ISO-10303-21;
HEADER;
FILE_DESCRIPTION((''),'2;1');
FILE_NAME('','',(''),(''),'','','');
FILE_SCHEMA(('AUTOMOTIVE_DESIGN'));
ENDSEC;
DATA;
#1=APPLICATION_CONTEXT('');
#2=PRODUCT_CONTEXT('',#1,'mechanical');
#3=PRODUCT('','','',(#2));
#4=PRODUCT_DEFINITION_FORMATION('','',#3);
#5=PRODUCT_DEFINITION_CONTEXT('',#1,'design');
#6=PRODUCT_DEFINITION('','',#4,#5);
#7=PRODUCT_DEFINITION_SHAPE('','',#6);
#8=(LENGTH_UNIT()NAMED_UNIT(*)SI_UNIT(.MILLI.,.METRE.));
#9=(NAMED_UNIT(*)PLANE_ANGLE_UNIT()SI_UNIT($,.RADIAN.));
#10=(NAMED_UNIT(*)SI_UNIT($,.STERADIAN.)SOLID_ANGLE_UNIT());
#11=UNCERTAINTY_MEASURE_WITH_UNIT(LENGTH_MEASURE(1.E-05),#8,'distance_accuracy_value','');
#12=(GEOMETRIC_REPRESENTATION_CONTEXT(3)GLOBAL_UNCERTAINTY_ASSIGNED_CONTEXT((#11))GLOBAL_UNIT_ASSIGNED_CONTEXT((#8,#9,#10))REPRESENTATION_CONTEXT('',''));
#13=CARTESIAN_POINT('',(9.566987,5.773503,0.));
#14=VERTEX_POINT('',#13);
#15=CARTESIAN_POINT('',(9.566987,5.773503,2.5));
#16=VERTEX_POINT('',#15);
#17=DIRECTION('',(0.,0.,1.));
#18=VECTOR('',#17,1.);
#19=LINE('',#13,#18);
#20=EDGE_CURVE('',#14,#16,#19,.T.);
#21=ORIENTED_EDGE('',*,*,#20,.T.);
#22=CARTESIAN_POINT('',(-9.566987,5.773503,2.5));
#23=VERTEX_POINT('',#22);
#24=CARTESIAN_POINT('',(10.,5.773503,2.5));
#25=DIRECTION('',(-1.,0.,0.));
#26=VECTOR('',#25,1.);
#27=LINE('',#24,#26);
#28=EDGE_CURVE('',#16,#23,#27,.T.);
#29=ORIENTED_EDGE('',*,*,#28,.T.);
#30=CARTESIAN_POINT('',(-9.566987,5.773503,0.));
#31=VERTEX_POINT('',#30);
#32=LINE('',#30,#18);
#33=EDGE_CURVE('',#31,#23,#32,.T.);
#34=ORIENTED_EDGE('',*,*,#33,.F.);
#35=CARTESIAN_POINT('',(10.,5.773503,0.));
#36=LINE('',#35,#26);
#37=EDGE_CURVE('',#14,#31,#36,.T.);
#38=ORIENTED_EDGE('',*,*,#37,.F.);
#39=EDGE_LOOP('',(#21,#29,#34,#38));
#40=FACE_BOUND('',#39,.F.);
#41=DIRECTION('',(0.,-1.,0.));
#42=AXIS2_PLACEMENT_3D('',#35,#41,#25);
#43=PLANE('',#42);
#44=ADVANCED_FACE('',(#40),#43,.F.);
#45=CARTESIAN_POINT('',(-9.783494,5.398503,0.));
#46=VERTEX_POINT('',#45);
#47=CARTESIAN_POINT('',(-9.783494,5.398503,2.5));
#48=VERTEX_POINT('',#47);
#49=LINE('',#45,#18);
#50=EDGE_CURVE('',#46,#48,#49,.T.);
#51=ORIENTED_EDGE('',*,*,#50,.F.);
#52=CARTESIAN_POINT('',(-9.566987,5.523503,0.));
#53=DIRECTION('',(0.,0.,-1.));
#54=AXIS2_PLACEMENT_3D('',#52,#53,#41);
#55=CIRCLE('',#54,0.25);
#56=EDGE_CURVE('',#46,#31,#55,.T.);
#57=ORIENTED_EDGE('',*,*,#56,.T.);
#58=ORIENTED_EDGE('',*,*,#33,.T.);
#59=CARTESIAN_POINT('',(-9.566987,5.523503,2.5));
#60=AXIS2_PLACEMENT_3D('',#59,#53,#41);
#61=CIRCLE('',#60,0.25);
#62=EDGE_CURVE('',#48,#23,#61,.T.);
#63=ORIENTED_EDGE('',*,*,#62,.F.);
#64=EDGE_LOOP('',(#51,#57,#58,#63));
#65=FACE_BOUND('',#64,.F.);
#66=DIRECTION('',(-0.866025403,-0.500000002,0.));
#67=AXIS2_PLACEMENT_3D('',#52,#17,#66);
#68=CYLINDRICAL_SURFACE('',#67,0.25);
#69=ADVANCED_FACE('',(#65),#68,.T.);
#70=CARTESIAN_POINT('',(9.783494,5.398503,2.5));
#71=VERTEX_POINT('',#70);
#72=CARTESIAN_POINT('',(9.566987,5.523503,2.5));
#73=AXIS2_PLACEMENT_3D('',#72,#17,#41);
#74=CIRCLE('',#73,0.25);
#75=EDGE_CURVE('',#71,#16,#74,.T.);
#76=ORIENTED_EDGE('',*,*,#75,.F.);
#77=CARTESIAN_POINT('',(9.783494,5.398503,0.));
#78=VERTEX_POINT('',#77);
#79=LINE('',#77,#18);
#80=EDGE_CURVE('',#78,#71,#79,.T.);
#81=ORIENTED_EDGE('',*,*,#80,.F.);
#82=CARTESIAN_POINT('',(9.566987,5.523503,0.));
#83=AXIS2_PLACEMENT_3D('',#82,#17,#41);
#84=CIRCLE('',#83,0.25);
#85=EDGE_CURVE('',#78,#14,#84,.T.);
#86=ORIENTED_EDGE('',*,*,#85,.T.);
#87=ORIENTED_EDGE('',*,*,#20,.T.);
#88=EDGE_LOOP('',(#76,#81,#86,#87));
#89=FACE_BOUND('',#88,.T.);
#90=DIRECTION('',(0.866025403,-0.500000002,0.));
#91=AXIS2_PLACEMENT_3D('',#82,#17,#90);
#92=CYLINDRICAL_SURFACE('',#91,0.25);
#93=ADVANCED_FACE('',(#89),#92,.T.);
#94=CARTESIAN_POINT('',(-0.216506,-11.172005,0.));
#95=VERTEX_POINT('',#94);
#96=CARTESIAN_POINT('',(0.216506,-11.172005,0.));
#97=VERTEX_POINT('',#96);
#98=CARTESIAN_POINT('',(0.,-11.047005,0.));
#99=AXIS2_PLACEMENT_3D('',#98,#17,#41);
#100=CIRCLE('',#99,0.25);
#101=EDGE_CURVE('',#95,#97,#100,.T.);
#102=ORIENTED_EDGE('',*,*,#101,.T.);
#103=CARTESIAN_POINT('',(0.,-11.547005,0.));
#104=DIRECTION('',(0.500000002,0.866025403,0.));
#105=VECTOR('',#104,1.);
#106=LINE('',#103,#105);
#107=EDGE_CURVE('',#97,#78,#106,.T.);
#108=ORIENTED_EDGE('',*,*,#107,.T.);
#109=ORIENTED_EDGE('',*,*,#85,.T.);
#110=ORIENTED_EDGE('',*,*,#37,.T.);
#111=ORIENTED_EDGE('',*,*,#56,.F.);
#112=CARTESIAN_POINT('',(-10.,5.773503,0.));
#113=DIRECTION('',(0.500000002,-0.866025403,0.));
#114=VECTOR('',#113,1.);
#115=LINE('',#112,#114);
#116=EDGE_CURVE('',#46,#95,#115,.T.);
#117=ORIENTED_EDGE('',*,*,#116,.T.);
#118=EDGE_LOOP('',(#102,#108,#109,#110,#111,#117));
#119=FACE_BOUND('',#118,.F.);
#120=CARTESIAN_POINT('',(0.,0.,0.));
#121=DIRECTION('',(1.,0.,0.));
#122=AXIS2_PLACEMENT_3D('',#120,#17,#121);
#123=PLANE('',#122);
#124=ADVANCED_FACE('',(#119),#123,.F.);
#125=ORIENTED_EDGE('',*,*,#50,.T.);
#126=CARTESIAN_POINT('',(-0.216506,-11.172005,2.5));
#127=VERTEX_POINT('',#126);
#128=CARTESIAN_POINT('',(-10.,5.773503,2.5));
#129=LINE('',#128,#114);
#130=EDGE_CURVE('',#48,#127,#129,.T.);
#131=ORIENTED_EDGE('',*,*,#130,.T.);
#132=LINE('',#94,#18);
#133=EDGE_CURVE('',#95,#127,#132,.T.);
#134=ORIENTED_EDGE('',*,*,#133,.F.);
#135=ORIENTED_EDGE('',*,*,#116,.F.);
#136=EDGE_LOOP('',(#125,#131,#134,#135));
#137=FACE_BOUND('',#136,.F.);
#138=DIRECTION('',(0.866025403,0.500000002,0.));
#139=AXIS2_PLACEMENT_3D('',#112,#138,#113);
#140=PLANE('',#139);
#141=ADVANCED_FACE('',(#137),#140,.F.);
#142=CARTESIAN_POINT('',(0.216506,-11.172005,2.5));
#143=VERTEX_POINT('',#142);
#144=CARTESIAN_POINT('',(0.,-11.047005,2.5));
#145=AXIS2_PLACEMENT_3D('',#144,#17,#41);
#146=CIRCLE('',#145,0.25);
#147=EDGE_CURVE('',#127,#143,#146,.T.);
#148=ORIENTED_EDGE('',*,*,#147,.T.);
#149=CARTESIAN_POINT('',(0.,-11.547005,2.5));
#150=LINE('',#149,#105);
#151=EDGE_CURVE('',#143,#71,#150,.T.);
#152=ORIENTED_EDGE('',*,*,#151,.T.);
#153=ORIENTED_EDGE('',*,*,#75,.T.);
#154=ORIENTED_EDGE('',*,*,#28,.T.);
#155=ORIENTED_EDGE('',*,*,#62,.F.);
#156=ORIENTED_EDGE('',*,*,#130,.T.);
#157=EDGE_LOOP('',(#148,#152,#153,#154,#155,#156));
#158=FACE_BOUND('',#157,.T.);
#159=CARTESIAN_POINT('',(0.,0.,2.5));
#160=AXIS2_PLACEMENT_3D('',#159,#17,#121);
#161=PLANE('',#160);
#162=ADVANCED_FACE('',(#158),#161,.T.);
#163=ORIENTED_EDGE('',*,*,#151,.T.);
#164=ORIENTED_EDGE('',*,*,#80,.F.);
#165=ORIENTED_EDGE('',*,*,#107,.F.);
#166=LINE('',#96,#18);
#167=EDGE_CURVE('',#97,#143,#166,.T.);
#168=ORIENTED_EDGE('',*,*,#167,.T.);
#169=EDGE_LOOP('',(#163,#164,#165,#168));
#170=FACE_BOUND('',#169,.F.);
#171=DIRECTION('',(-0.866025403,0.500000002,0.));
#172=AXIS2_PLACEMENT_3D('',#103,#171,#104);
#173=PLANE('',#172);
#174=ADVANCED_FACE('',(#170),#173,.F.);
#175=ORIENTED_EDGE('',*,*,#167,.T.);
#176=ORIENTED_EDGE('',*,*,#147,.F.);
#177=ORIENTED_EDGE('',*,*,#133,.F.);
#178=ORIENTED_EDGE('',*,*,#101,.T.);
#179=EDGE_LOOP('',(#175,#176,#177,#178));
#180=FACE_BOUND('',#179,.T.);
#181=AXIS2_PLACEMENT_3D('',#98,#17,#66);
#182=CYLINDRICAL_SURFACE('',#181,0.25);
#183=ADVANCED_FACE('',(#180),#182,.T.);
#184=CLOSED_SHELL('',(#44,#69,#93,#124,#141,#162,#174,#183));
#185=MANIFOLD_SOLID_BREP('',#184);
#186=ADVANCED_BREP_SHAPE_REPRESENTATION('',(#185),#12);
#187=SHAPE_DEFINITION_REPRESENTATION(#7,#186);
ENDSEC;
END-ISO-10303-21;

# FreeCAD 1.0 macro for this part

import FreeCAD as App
import Part
import Sketcher

V = App.Vector
Q = App.Units.Quantity


def edges_at(feature, points):
    """Names of the edges that pass closest to the given points."""
    edges = feature.Shape.Edges
    near = lambda p: min(range(len(edges)), key=lambda i: edges[i].distToShape(Part.Vertex(*p))[0])
    return sorted({f"Edge{near(p) + 1}" for p in points})


def add_polygon(sketch, points):
    """Adds a closed chain of lines whose ends are joined by coincident constraints."""
    first, n = sketch.GeometryCount, len(points)
    for a, b in zip(points, points[1:] + points[:1]):
        sketch.addGeometry(Part.LineSegment(App.Vector(*a, 0), App.Vector(*b, 0)), False)
    for i in range(n):
        sketch.addConstraint(Sketcher.Constraint("Coincident", first + i, 2, first + (i + 1) % n, 1))

doc = App.newDocument("Part")
body = doc.addObject("PartDesign::Body", "Body")

# Sketch on XY plane
sketch1 = body.newObject("Sketcher::SketchObject", "Sketch")
sketch1.AttachmentSupport = (doc.getObject("XY_Plane"), [""])
sketch1.MapMode = "FlatFace"
add_polygon(sketch1, [(-10, 6), (0, -12), (10, 6)])  # lines 0-2
sketch1.addConstraint([
    Sketcher.Constraint("Horizontal", 2),
    Sketcher.Constraint("PointOnObject", 0, 2, -2),
    Sketcher.Constraint("Equal", 0, 1),
    Sketcher.Constraint("DistanceX", 2, 2, 2, 1, Q("20 mm")),
    Sketcher.Constraint("Angle", 0, Q("-60 deg")),
    Sketcher.Constraint("DistanceY", 0, 2, -1, 1, Q("11.547005 mm")),
])
pad1 = body.newObject("PartDesign::Pad", "Pad")
pad1.Profile = sketch1
pad1.Length = 2.5
doc.recompute()

fillet = body.newObject("PartDesign::Fillet", "Fillet")
fillet.Base = (pad1, edges_at(pad1, [(0, -11.547, 1.25), (10, 5.774, 1.25), (-10, 5.774, 1.25)]))
fillet.Radius = 0.25

doc.recompute()
